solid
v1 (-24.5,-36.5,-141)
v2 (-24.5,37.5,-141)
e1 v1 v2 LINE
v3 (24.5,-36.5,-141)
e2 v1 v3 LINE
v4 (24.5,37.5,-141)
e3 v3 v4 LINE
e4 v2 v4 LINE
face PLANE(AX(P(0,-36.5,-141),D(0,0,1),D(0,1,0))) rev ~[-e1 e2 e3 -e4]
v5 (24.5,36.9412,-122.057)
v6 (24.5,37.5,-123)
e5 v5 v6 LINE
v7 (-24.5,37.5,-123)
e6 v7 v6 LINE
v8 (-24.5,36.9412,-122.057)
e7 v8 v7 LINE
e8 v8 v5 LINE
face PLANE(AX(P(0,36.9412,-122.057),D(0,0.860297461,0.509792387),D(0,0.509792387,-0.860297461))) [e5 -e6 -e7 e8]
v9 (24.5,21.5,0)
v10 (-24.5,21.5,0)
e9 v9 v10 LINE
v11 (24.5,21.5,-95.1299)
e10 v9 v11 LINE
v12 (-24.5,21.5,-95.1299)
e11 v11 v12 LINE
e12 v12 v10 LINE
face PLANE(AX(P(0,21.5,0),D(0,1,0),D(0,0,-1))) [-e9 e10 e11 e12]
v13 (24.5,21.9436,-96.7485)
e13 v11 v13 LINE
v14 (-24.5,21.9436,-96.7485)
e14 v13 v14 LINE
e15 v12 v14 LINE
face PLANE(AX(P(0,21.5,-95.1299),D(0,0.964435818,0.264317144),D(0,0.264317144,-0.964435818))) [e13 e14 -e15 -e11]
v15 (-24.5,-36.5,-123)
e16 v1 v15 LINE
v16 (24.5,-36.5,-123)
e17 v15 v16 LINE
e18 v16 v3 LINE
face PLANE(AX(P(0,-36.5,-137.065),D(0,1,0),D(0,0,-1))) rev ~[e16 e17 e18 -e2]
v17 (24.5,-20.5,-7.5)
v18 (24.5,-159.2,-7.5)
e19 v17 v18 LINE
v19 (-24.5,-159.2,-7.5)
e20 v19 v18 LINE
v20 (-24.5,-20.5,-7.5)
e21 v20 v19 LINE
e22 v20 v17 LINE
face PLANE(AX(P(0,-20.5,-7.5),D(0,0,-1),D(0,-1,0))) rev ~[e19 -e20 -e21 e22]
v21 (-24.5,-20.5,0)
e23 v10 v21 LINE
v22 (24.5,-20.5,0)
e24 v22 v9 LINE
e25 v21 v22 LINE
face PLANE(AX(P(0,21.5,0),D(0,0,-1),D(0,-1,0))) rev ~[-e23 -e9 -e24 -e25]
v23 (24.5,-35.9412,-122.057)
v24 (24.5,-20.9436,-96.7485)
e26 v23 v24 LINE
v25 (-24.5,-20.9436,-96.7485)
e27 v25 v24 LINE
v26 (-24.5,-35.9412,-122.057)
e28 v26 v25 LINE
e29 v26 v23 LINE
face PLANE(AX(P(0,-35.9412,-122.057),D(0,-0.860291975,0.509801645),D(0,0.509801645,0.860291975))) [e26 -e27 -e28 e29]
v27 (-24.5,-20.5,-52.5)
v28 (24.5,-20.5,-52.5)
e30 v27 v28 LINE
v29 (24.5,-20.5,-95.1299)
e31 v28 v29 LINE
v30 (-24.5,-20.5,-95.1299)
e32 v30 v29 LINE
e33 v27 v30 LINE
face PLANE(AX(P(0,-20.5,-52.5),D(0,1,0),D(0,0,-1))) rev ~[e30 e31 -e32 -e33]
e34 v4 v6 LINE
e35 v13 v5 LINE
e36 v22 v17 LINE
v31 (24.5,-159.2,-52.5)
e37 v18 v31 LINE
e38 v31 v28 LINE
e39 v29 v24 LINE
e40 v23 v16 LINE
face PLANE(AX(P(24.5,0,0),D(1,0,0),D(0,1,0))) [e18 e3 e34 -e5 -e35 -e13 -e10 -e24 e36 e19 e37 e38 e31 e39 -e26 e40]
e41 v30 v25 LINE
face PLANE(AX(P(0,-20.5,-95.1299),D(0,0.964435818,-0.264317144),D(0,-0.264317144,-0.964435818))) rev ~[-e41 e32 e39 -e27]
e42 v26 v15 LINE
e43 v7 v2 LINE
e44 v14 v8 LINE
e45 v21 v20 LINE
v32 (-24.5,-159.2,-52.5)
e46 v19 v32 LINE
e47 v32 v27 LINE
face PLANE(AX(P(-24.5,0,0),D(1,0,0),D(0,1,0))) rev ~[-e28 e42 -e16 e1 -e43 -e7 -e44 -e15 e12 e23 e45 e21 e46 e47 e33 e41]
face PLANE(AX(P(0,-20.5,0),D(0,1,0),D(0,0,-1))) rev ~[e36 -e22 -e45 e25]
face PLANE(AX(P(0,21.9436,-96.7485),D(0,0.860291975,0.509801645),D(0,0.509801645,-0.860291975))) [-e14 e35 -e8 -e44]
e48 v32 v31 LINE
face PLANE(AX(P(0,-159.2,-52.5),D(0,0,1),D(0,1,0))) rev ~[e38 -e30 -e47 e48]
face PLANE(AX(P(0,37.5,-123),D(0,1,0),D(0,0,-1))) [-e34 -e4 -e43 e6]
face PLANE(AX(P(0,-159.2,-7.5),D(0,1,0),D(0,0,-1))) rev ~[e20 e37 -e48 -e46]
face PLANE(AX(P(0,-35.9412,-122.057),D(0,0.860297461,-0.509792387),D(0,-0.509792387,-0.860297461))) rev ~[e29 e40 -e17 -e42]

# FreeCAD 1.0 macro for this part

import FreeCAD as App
import Part
import Sketcher
from FreeCAD import Vector
Q = App.Units.Quantity

doc = App.newDocument("Part")
body = doc.addObject("PartDesign::Body", "Body")

# Sketch on YZ plane
sketch1 = doc.addObject("Sketcher::SketchObject", "Sketch")
body.addObject(sketch1)
sketch1.AttachmentSupport = (doc.YZ_Plane, [""])
sketch1.MapMode = "FlatFace"
sketch1.addGeometry([
    Part.LineSegment(Vector(21.5, 0, 0), Vector(-20.5, 0, 0)),  # 0
    Part.LineSegment(Vector(-20.5, 0, 0), Vector(-20.5, -7.5, 0)),  # 1
    Part.LineSegment(Vector(-20.5, -7.5, 0), Vector(-159.2, -7.5, 0)),  # 2
    Part.LineSegment(Vector(-159.2, -7.5, 0), Vector(-159.2, -52.5, 0)),  # 3
    Part.LineSegment(Vector(-159.2, -52.5, 0), Vector(-20.5, -52.5, 0)),  # 4
    Part.LineSegment(Vector(-20.5, -52.5, 0), Vector(-20.5, -95.1, 0)),  # 5
    Part.LineSegment(Vector(-20.5, -95.1, 0), Vector(-20.9, -96.7, 0)),  # 6
    Part.LineSegment(Vector(-20.9, -96.7, 0), Vector(-35.9, -122.1, 0)),  # 7
    Part.LineSegment(Vector(-35.9, -122.1, 0), Vector(-36.5, -123, 0)),  # 8
    Part.LineSegment(Vector(-36.5, -123, 0), Vector(-36.5, -141, 0)),  # 9
    Part.LineSegment(Vector(-36.5, -141, 0), Vector(37.5, -141, 0)),  # 10
    Part.LineSegment(Vector(37.5, -141, 0), Vector(37.5, -123, 0)),  # 11
    Part.LineSegment(Vector(37.5, -123, 0), Vector(36.9, -122.1, 0)),  # 12
    Part.LineSegment(Vector(36.9, -122.1, 0), Vector(21.9, -96.7, 0)),  # 13
    Part.LineSegment(Vector(21.9, -96.7, 0), Vector(21.5, -95.1, 0)),  # 14
    Part.LineSegment(Vector(21.5, -95.1, 0), Vector(21.5, 0, 0)),  # 15
], False)
sketch1.addConstraint([
    Sketcher.Constraint("Coincident", 0, 2, 1, 1),
    Sketcher.Constraint("Coincident", 1, 2, 2, 1),
    Sketcher.Constraint("Coincident", 2, 2, 3, 1),
    Sketcher.Constraint("Coincident", 3, 2, 4, 1),
    Sketcher.Constraint("Coincident", 4, 2, 5, 1),
    Sketcher.Constraint("Coincident", 5, 2, 6, 1),
    Sketcher.Constraint("Coincident", 6, 2, 7, 1),
    Sketcher.Constraint("Coincident", 7, 2, 8, 1),
    Sketcher.Constraint("Coincident", 8, 2, 9, 1),
    Sketcher.Constraint("Coincident", 9, 2, 10, 1),
    Sketcher.Constraint("Coincident", 10, 2, 11, 1),
    Sketcher.Constraint("Coincident", 11, 2, 12, 1),
    Sketcher.Constraint("Coincident", 12, 2, 13, 1),
    Sketcher.Constraint("Coincident", 13, 2, 14, 1),
    Sketcher.Constraint("Coincident", 14, 2, 15, 1),
    Sketcher.Constraint("Coincident", 15, 2, 0, 1),
    Sketcher.Constraint("Horizontal", 0),
    Sketcher.Constraint("Vertical", 1),
    Sketcher.Constraint("Horizontal", 2),
    Sketcher.Constraint("Vertical", 3),
    Sketcher.Constraint("Horizontal", 4),
    Sketcher.Constraint("Vertical", 5),
    Sketcher.Constraint("Vertical", 9),
    Sketcher.Constraint("Horizontal", 10),
    Sketcher.Constraint("Vertical", 11),
    Sketcher.Constraint("Vertical", 15),
    Sketcher.Constraint("PointOnObject", 0, 2, -1),
    Sketcher.Constraint("Parallel", 7, 8),
    Sketcher.Constraint("Parallel", 12, 13),
    Sketcher.Constraint("Horizontal", 8, 2, 11, 2),
    Sketcher.Constraint("Horizontal", 7, 2, 12, 2),
    Sketcher.Constraint("Horizontal", 6, 2, 13, 2),
    Sketcher.Constraint("Horizontal", 5, 2, 14, 2),
    Sketcher.Constraint("Vertical", 1, 2, 4, 2),
    Sketcher.Constraint("Equal", 8, 12),
    Sketcher.Constraint("Equal", 6, 14),
    Sketcher.Constraint("DistanceX", 0, 2, 0, 1, 42.0),
    Sketcher.Constraint("DistanceX", 10, 1, 10, 2, 74.0),
    Sketcher.Constraint("DistanceY", 3, 2, 3, 1, 45.0),
    Sketcher.Constraint("DistanceY", 9, 2, 9, 1, 18.0),
    Sketcher.Constraint("DistanceX", 2, 2, 2, 1, 138.7),
    Sketcher.Constraint("DistanceY", 1, 2, 1, 1, 7.5),
    Sketcher.Constraint("DistanceY", 8, 2, -1, 1, 123.0),
    Sketcher.Constraint("DistanceY", 5, 2, 5, 1, 42.63),
    Sketcher.Constraint("DistanceX", 0, 2, -1, 1, 20.5),
    Sketcher.Constraint("Angle", 7, Q("-120.6506 deg")),
    Sketcher.Constraint("DistanceY", 7, 2, -1, 1, 122.057),
    Sketcher.Constraint("Distance", 6, 1.6783),
])
pad1 = doc.addObject("PartDesign::Pad", "Pad")
body.addObject(pad1)
pad1.Profile = sketch1
pad1.Length = 49
pad1.Midplane = True

doc.recompute()
